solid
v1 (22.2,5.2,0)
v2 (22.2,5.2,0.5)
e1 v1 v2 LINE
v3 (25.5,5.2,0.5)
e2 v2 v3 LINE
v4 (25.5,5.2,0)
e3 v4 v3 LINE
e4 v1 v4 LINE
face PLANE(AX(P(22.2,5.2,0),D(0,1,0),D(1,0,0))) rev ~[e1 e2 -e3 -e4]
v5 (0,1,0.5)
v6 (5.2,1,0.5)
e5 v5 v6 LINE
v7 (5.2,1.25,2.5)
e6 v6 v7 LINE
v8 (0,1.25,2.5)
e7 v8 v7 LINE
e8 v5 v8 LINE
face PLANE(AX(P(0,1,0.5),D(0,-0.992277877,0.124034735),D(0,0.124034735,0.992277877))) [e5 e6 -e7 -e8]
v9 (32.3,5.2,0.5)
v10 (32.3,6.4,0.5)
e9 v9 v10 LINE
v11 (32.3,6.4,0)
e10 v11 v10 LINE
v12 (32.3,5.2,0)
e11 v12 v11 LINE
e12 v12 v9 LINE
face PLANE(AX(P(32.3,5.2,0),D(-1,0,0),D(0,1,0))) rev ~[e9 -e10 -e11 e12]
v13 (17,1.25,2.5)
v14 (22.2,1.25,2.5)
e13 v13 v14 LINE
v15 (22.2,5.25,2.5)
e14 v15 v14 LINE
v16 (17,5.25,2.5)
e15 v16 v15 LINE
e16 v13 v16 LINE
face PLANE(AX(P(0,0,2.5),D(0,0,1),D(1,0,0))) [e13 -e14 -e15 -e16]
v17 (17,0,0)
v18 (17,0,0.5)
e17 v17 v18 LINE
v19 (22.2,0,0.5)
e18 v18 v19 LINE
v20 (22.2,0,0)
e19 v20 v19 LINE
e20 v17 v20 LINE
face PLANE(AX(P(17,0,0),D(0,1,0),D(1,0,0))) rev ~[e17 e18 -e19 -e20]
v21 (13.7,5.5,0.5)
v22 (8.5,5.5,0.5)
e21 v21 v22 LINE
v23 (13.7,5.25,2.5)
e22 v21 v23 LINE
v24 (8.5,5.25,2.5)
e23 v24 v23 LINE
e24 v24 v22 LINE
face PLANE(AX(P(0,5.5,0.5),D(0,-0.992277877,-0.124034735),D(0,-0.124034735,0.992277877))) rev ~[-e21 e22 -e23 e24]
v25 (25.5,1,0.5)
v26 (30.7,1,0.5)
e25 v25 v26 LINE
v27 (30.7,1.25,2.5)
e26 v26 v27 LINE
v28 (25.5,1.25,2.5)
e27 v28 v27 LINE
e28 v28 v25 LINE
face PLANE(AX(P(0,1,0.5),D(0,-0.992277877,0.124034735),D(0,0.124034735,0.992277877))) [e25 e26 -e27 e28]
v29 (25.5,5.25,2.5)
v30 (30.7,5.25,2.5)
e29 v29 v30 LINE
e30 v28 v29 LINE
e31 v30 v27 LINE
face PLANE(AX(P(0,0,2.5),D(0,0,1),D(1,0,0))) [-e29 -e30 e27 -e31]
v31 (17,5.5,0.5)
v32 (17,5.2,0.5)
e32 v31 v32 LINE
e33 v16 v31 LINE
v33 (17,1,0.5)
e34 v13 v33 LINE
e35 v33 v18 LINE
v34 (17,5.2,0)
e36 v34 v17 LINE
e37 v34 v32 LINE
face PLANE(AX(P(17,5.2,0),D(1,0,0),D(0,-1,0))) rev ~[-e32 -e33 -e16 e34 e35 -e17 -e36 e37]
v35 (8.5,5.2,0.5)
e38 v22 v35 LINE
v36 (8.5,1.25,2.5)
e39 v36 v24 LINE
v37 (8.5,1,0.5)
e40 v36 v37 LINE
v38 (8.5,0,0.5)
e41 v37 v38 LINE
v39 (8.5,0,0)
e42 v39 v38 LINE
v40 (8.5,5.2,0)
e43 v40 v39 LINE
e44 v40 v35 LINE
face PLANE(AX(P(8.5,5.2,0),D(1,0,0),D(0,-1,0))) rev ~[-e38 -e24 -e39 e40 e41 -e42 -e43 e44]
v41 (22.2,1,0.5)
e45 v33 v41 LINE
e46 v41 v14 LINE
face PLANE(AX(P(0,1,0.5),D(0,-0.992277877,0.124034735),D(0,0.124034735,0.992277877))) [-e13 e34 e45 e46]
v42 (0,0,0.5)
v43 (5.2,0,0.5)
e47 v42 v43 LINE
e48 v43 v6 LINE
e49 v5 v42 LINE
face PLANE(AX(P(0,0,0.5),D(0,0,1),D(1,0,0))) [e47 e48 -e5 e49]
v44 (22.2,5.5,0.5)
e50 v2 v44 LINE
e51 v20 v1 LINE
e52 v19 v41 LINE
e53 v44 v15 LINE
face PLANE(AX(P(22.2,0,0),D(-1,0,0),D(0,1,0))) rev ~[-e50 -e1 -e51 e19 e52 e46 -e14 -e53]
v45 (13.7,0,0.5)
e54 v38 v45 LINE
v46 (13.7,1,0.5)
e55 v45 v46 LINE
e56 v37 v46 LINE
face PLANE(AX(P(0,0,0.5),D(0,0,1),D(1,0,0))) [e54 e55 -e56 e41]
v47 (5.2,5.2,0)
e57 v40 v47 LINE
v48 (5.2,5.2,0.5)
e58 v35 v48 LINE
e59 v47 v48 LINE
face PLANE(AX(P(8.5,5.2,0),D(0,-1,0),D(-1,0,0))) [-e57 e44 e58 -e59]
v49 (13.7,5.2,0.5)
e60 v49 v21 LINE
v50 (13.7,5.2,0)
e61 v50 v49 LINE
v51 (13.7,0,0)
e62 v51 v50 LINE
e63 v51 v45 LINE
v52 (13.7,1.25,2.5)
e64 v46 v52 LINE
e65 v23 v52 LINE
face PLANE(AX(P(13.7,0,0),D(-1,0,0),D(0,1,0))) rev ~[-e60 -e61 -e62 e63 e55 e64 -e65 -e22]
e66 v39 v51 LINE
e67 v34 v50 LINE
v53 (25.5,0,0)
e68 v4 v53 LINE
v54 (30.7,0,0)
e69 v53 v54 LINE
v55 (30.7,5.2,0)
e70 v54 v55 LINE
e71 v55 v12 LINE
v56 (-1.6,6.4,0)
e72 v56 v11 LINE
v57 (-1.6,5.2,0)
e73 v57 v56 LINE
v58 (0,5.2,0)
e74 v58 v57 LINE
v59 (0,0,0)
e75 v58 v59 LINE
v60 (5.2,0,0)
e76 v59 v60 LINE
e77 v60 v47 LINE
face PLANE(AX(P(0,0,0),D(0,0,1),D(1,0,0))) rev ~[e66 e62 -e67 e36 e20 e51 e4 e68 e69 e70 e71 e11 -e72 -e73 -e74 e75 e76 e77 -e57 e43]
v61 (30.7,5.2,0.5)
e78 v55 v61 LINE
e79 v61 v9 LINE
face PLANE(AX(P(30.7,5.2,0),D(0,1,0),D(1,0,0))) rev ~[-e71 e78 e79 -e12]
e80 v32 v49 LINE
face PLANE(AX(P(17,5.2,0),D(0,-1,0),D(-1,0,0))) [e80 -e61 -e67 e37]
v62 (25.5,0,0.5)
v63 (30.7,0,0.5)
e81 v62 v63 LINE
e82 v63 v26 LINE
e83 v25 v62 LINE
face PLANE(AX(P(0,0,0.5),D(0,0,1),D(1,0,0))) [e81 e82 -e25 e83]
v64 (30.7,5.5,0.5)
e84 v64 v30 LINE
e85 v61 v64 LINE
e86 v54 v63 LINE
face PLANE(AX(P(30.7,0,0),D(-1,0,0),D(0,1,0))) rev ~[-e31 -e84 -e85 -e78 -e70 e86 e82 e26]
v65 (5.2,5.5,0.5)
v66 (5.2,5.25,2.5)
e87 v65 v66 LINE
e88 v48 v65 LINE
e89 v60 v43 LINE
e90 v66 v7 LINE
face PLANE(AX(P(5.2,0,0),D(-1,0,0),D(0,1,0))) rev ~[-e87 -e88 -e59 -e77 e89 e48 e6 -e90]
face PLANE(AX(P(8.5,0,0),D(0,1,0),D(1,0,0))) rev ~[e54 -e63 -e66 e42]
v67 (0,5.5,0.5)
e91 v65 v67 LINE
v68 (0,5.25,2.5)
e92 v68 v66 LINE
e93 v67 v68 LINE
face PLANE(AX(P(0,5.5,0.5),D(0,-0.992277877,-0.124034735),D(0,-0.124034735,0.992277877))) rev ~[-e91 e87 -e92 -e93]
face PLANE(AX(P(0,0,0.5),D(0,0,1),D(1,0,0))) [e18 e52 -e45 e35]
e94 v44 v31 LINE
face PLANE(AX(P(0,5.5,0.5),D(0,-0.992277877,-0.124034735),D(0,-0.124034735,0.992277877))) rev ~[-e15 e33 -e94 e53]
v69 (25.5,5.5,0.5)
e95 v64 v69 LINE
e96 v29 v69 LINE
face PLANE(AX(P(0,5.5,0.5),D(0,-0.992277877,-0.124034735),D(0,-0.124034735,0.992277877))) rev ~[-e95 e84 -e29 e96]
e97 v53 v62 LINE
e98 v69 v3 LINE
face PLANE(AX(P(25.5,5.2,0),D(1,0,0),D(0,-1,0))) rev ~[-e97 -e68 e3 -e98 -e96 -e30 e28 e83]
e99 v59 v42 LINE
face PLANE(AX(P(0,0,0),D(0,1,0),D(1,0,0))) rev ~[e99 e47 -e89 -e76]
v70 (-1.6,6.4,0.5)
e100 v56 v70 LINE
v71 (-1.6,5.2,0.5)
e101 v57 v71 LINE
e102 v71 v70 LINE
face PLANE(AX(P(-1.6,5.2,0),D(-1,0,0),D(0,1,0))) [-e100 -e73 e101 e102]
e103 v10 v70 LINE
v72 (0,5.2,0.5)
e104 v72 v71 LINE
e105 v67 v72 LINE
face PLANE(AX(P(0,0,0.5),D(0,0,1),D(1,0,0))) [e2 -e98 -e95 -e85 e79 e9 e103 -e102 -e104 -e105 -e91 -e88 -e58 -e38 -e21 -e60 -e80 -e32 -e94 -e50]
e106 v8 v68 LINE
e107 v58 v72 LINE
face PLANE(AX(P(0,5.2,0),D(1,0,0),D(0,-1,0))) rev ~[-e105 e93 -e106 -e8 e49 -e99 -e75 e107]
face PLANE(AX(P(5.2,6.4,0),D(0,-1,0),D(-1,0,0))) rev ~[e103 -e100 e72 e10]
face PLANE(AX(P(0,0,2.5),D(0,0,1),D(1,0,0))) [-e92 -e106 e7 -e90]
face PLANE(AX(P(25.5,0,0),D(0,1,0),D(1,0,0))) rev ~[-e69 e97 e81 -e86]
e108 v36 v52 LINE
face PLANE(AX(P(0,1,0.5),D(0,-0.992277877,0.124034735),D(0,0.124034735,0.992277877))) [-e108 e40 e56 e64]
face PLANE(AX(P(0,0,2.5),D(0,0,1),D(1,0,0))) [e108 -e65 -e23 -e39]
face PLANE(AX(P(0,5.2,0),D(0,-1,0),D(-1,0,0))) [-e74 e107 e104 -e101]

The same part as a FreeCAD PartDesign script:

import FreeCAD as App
import Part
import Sketcher
from FreeCAD import Vector


def add_polygon(sketch, points):
    """Adds a closed chain of lines whose ends are joined by coincident constraints."""
    first, n = sketch.GeometryCount, len(points)
    for a, b in zip(points, points[1:] + points[:1]):
        sketch.addGeometry(Part.LineSegment(App.Vector(*a, 0), App.Vector(*b, 0)), False)
    for i in range(n):
        sketch.addConstraint(Sketcher.Constraint("Coincident", first + i, 2, first + (i + 1) % n, 1))

doc = App.newDocument("Part")
body = doc.addObject("PartDesign::Body", "Body")

sketch1 = doc.addObject("Sketcher::SketchObject", "Sketch")
body.addObject(sketch1)
sketch1.AttachmentSupport = (doc.XY_Plane, [""])
sketch1.MapMode = "FlatFace"
add_polygon(sketch1, [(0, 5.2), (0, 0), (5.2, 0), (5.2, 5.2), (8.5, 5.2), (8.5, 0), (13.7, 0), (13.7, 5.2), (17, 5.2), (17, 0), (22.2, 0), (22.2, 5.2), (25.5, 5.2), (25.5, 0), (30.7, 0), (30.7, 5.2), (32.3, 5.2), (32.3, 6.4), (-1.6, 6.4), (-1.6, 5.2)])
sketch1.addConstraint([
    Sketcher.Constraint("Vertical", 0),
    Sketcher.Constraint("Horizontal", 1),
    Sketcher.Constraint("Vertical", 2),
    Sketcher.Constraint("Horizontal", 3),
    Sketcher.Constraint("Vertical", 4),
    Sketcher.Constraint("Horizontal", 5),
    Sketcher.Constraint("Vertical", 6),
    Sketcher.Constraint("Horizontal", 7),
    Sketcher.Constraint("Vertical", 8),
    Sketcher.Constraint("Horizontal", 9),
    Sketcher.Constraint("Vertical", 10),
    Sketcher.Constraint("Horizontal", 11),
    Sketcher.Constraint("Vertical", 12),
    Sketcher.Constraint("Horizontal", 13),
    Sketcher.Constraint("Vertical", 14),
    Sketcher.Constraint("Horizontal", 15),
    Sketcher.Constraint("Vertical", 16),
    Sketcher.Constraint("Horizontal", 17),
    Sketcher.Constraint("Vertical", 18),
    Sketcher.Constraint("Horizontal", 19),
    Sketcher.Constraint("Coincident", 0, 2, -1, 1),
    Sketcher.Constraint("PointOnObject", 4, 2, -1),
    Sketcher.Constraint("PointOnObject", 8, 2, -1),
    Sketcher.Constraint("PointOnObject", 12, 2, -1),
    Sketcher.Constraint("Horizontal", 3, 2, 6, 2),
    Sketcher.Constraint("Horizontal", 7, 2, 10, 2),
    Sketcher.Constraint("Horizontal", 11, 2, 14, 2),
    Sketcher.Constraint("Horizontal", 15, 2, 18, 2),
    Sketcher.Constraint("Equal", 1, 5),
    Sketcher.Constraint("Equal", 3, 7),
    Sketcher.Constraint("Equal", 5, 9),
    Sketcher.Constraint("Equal", 7, 11),
    Sketcher.Constraint("Equal", 9, 13),
    Sketcher.Constraint("Equal", 15, 19),
    Sketcher.Constraint("Equal", 13, 0),
    Sketcher.Constraint("DistanceX", 1, 1, 1, 2, 5.2),
    Sketcher.Constraint("DistanceX", 15, 1, 15, 2, 1.6),
    Sketcher.Constraint("DistanceY", 16, 1, 16, 2, 1.2),
    Sketcher.Constraint("DistanceX", -1, 1, 3, 2, 8.5),
])
pad1 = doc.addObject("PartDesign::Pad", "Pad")
body.addObject(pad1)
pad1.Profile = sketch1
pad1.Length = 0.5

sketch2 = doc.addObject("Sketcher::SketchObject", "Sketch001")
body.addObject(sketch2)
sketch2.AttachmentSupport = (doc.XY_Plane, [""])
sketch2.MapMode = "FlatFace"
sketch2.AttachmentOffset = App.Placement(Vector(0, 0, 0.5), App.Rotation())
add_polygon(sketch2, [(0, 5.5), (0, 1), (5.2, 1), (5.2, 5.5)])
add_polygon(sketch2, [(8.5, 5.5), (8.5, 1), (13.7, 1), (13.7, 5.5)])
add_polygon(sketch2, [(17, 5.5), (17, 1), (22.2, 1), (22.2, 5.5)])
add_polygon(sketch2, [(25.5, 5.5), (25.5, 1), (30.7, 1), (30.7, 5.5)])
sketch2.addConstraint([
    Sketcher.Constraint("Vertical", 0),
    Sketcher.Constraint("Horizontal", 1),
    Sketcher.Constraint("Vertical", 2),
    Sketcher.Constraint("Horizontal", 3),
    Sketcher.Constraint("Vertical", 4),
    Sketcher.Constraint("Horizontal", 5),
    Sketcher.Constraint("Vertical", 6),
    Sketcher.Constraint("Horizontal", 7),
    Sketcher.Constraint("Vertical", 8),
    Sketcher.Constraint("Horizontal", 9),
    Sketcher.Constraint("Vertical", 10),
    Sketcher.Constraint("Horizontal", 11),
    Sketcher.Constraint("Vertical", 12),
    Sketcher.Constraint("Horizontal", 13),
    Sketcher.Constraint("Vertical", 14),
    Sketcher.Constraint("Horizontal", 15),
    Sketcher.Constraint("PointOnObject", 0, 2, -2),
    Sketcher.Constraint("Horizontal", 1, 2, 4, 2),
    Sketcher.Constraint("Horizontal", 3, 2, 6, 2),
    Sketcher.Constraint("Horizontal", 5, 2, 8, 2),
    Sketcher.Constraint("Horizontal", 7, 2, 10, 2),
    Sketcher.Constraint("Horizontal", 9, 2, 12, 2),
    Sketcher.Constraint("Horizontal", 11, 2, 14, 2),
    Sketcher.Constraint("Equal", 3, 5),
    Sketcher.Constraint("Equal", 7, 9),
    Sketcher.Constraint("Equal", 11, 13),
    Sketcher.Constraint("DistanceY", 0, 2, 0, 1, 4.5),
    Sketcher.Constraint("DistanceY", -1, 1, 0, 2, 1.0),
    Sketcher.Constraint("DistanceX", 1, 1, 1, 2, 5.2),
    Sketcher.Constraint("DistanceX", -1, 1, 8, 2, 17.0),
    Sketcher.Constraint("DistanceX", -1, 1, 4, 2, 8.5),
    Sketcher.Constraint("DistanceX", -1, 1, 12, 2, 25.5),
])
pad2 = doc.addObject("PartDesign::Pad", "Pad001")
body.addObject(pad2)
pad2.Profile = sketch2
pad2.Length = 2

sketch3 = doc.addObject("Sketcher::SketchObject", "Sketch002")
body.addObject(sketch3)
sketch3.AttachmentSupport = (doc.YZ_Plane, [""])
sketch3.MapMode = "FlatFace"
add_polygon(sketch3, [(1.25, 2.5), (1, 0.5), (1, 2.5)])
add_polygon(sketch3, [(5.5, 0.5), (5.25, 2.5), (5.5, 2.5)])
sketch3.addConstraint([
    Sketcher.Constraint("Vertical", 1),
    Sketcher.Constraint("Horizontal", 2),
    Sketcher.Constraint("Horizontal", 4),
    Sketcher.Constraint("Vertical", 5),
    Sketcher.Constraint("Horizontal", 2, 2, 3, 2),
    Sketcher.Constraint("Horizontal", 0, 2, 5, 2),
    Sketcher.Constraint("Equal", 2, 4),
    Sketcher.Constraint("DistanceX", 2, 2, 3, 2, 4.0),
    Sketcher.Constraint("DistanceY", 1, 1, 1, 2, 2.0),
    Sketcher.Constraint("DistanceX", -1, 1, 0, 2, 1.0),
    Sketcher.Constraint("DistanceX", 2, 1, 2, 2, 0.25),
    Sketcher.Constraint("DistanceY", -1, 1, 0, 2, 0.5),
])
pocket1 = doc.addObject("PartDesign::Pocket", "Pocket")
body.addObject(pocket1)
pocket1.Profile = sketch3
pocket1.Type = "ThroughAll"
pocket1.Reversed = True

doc.recompute()
